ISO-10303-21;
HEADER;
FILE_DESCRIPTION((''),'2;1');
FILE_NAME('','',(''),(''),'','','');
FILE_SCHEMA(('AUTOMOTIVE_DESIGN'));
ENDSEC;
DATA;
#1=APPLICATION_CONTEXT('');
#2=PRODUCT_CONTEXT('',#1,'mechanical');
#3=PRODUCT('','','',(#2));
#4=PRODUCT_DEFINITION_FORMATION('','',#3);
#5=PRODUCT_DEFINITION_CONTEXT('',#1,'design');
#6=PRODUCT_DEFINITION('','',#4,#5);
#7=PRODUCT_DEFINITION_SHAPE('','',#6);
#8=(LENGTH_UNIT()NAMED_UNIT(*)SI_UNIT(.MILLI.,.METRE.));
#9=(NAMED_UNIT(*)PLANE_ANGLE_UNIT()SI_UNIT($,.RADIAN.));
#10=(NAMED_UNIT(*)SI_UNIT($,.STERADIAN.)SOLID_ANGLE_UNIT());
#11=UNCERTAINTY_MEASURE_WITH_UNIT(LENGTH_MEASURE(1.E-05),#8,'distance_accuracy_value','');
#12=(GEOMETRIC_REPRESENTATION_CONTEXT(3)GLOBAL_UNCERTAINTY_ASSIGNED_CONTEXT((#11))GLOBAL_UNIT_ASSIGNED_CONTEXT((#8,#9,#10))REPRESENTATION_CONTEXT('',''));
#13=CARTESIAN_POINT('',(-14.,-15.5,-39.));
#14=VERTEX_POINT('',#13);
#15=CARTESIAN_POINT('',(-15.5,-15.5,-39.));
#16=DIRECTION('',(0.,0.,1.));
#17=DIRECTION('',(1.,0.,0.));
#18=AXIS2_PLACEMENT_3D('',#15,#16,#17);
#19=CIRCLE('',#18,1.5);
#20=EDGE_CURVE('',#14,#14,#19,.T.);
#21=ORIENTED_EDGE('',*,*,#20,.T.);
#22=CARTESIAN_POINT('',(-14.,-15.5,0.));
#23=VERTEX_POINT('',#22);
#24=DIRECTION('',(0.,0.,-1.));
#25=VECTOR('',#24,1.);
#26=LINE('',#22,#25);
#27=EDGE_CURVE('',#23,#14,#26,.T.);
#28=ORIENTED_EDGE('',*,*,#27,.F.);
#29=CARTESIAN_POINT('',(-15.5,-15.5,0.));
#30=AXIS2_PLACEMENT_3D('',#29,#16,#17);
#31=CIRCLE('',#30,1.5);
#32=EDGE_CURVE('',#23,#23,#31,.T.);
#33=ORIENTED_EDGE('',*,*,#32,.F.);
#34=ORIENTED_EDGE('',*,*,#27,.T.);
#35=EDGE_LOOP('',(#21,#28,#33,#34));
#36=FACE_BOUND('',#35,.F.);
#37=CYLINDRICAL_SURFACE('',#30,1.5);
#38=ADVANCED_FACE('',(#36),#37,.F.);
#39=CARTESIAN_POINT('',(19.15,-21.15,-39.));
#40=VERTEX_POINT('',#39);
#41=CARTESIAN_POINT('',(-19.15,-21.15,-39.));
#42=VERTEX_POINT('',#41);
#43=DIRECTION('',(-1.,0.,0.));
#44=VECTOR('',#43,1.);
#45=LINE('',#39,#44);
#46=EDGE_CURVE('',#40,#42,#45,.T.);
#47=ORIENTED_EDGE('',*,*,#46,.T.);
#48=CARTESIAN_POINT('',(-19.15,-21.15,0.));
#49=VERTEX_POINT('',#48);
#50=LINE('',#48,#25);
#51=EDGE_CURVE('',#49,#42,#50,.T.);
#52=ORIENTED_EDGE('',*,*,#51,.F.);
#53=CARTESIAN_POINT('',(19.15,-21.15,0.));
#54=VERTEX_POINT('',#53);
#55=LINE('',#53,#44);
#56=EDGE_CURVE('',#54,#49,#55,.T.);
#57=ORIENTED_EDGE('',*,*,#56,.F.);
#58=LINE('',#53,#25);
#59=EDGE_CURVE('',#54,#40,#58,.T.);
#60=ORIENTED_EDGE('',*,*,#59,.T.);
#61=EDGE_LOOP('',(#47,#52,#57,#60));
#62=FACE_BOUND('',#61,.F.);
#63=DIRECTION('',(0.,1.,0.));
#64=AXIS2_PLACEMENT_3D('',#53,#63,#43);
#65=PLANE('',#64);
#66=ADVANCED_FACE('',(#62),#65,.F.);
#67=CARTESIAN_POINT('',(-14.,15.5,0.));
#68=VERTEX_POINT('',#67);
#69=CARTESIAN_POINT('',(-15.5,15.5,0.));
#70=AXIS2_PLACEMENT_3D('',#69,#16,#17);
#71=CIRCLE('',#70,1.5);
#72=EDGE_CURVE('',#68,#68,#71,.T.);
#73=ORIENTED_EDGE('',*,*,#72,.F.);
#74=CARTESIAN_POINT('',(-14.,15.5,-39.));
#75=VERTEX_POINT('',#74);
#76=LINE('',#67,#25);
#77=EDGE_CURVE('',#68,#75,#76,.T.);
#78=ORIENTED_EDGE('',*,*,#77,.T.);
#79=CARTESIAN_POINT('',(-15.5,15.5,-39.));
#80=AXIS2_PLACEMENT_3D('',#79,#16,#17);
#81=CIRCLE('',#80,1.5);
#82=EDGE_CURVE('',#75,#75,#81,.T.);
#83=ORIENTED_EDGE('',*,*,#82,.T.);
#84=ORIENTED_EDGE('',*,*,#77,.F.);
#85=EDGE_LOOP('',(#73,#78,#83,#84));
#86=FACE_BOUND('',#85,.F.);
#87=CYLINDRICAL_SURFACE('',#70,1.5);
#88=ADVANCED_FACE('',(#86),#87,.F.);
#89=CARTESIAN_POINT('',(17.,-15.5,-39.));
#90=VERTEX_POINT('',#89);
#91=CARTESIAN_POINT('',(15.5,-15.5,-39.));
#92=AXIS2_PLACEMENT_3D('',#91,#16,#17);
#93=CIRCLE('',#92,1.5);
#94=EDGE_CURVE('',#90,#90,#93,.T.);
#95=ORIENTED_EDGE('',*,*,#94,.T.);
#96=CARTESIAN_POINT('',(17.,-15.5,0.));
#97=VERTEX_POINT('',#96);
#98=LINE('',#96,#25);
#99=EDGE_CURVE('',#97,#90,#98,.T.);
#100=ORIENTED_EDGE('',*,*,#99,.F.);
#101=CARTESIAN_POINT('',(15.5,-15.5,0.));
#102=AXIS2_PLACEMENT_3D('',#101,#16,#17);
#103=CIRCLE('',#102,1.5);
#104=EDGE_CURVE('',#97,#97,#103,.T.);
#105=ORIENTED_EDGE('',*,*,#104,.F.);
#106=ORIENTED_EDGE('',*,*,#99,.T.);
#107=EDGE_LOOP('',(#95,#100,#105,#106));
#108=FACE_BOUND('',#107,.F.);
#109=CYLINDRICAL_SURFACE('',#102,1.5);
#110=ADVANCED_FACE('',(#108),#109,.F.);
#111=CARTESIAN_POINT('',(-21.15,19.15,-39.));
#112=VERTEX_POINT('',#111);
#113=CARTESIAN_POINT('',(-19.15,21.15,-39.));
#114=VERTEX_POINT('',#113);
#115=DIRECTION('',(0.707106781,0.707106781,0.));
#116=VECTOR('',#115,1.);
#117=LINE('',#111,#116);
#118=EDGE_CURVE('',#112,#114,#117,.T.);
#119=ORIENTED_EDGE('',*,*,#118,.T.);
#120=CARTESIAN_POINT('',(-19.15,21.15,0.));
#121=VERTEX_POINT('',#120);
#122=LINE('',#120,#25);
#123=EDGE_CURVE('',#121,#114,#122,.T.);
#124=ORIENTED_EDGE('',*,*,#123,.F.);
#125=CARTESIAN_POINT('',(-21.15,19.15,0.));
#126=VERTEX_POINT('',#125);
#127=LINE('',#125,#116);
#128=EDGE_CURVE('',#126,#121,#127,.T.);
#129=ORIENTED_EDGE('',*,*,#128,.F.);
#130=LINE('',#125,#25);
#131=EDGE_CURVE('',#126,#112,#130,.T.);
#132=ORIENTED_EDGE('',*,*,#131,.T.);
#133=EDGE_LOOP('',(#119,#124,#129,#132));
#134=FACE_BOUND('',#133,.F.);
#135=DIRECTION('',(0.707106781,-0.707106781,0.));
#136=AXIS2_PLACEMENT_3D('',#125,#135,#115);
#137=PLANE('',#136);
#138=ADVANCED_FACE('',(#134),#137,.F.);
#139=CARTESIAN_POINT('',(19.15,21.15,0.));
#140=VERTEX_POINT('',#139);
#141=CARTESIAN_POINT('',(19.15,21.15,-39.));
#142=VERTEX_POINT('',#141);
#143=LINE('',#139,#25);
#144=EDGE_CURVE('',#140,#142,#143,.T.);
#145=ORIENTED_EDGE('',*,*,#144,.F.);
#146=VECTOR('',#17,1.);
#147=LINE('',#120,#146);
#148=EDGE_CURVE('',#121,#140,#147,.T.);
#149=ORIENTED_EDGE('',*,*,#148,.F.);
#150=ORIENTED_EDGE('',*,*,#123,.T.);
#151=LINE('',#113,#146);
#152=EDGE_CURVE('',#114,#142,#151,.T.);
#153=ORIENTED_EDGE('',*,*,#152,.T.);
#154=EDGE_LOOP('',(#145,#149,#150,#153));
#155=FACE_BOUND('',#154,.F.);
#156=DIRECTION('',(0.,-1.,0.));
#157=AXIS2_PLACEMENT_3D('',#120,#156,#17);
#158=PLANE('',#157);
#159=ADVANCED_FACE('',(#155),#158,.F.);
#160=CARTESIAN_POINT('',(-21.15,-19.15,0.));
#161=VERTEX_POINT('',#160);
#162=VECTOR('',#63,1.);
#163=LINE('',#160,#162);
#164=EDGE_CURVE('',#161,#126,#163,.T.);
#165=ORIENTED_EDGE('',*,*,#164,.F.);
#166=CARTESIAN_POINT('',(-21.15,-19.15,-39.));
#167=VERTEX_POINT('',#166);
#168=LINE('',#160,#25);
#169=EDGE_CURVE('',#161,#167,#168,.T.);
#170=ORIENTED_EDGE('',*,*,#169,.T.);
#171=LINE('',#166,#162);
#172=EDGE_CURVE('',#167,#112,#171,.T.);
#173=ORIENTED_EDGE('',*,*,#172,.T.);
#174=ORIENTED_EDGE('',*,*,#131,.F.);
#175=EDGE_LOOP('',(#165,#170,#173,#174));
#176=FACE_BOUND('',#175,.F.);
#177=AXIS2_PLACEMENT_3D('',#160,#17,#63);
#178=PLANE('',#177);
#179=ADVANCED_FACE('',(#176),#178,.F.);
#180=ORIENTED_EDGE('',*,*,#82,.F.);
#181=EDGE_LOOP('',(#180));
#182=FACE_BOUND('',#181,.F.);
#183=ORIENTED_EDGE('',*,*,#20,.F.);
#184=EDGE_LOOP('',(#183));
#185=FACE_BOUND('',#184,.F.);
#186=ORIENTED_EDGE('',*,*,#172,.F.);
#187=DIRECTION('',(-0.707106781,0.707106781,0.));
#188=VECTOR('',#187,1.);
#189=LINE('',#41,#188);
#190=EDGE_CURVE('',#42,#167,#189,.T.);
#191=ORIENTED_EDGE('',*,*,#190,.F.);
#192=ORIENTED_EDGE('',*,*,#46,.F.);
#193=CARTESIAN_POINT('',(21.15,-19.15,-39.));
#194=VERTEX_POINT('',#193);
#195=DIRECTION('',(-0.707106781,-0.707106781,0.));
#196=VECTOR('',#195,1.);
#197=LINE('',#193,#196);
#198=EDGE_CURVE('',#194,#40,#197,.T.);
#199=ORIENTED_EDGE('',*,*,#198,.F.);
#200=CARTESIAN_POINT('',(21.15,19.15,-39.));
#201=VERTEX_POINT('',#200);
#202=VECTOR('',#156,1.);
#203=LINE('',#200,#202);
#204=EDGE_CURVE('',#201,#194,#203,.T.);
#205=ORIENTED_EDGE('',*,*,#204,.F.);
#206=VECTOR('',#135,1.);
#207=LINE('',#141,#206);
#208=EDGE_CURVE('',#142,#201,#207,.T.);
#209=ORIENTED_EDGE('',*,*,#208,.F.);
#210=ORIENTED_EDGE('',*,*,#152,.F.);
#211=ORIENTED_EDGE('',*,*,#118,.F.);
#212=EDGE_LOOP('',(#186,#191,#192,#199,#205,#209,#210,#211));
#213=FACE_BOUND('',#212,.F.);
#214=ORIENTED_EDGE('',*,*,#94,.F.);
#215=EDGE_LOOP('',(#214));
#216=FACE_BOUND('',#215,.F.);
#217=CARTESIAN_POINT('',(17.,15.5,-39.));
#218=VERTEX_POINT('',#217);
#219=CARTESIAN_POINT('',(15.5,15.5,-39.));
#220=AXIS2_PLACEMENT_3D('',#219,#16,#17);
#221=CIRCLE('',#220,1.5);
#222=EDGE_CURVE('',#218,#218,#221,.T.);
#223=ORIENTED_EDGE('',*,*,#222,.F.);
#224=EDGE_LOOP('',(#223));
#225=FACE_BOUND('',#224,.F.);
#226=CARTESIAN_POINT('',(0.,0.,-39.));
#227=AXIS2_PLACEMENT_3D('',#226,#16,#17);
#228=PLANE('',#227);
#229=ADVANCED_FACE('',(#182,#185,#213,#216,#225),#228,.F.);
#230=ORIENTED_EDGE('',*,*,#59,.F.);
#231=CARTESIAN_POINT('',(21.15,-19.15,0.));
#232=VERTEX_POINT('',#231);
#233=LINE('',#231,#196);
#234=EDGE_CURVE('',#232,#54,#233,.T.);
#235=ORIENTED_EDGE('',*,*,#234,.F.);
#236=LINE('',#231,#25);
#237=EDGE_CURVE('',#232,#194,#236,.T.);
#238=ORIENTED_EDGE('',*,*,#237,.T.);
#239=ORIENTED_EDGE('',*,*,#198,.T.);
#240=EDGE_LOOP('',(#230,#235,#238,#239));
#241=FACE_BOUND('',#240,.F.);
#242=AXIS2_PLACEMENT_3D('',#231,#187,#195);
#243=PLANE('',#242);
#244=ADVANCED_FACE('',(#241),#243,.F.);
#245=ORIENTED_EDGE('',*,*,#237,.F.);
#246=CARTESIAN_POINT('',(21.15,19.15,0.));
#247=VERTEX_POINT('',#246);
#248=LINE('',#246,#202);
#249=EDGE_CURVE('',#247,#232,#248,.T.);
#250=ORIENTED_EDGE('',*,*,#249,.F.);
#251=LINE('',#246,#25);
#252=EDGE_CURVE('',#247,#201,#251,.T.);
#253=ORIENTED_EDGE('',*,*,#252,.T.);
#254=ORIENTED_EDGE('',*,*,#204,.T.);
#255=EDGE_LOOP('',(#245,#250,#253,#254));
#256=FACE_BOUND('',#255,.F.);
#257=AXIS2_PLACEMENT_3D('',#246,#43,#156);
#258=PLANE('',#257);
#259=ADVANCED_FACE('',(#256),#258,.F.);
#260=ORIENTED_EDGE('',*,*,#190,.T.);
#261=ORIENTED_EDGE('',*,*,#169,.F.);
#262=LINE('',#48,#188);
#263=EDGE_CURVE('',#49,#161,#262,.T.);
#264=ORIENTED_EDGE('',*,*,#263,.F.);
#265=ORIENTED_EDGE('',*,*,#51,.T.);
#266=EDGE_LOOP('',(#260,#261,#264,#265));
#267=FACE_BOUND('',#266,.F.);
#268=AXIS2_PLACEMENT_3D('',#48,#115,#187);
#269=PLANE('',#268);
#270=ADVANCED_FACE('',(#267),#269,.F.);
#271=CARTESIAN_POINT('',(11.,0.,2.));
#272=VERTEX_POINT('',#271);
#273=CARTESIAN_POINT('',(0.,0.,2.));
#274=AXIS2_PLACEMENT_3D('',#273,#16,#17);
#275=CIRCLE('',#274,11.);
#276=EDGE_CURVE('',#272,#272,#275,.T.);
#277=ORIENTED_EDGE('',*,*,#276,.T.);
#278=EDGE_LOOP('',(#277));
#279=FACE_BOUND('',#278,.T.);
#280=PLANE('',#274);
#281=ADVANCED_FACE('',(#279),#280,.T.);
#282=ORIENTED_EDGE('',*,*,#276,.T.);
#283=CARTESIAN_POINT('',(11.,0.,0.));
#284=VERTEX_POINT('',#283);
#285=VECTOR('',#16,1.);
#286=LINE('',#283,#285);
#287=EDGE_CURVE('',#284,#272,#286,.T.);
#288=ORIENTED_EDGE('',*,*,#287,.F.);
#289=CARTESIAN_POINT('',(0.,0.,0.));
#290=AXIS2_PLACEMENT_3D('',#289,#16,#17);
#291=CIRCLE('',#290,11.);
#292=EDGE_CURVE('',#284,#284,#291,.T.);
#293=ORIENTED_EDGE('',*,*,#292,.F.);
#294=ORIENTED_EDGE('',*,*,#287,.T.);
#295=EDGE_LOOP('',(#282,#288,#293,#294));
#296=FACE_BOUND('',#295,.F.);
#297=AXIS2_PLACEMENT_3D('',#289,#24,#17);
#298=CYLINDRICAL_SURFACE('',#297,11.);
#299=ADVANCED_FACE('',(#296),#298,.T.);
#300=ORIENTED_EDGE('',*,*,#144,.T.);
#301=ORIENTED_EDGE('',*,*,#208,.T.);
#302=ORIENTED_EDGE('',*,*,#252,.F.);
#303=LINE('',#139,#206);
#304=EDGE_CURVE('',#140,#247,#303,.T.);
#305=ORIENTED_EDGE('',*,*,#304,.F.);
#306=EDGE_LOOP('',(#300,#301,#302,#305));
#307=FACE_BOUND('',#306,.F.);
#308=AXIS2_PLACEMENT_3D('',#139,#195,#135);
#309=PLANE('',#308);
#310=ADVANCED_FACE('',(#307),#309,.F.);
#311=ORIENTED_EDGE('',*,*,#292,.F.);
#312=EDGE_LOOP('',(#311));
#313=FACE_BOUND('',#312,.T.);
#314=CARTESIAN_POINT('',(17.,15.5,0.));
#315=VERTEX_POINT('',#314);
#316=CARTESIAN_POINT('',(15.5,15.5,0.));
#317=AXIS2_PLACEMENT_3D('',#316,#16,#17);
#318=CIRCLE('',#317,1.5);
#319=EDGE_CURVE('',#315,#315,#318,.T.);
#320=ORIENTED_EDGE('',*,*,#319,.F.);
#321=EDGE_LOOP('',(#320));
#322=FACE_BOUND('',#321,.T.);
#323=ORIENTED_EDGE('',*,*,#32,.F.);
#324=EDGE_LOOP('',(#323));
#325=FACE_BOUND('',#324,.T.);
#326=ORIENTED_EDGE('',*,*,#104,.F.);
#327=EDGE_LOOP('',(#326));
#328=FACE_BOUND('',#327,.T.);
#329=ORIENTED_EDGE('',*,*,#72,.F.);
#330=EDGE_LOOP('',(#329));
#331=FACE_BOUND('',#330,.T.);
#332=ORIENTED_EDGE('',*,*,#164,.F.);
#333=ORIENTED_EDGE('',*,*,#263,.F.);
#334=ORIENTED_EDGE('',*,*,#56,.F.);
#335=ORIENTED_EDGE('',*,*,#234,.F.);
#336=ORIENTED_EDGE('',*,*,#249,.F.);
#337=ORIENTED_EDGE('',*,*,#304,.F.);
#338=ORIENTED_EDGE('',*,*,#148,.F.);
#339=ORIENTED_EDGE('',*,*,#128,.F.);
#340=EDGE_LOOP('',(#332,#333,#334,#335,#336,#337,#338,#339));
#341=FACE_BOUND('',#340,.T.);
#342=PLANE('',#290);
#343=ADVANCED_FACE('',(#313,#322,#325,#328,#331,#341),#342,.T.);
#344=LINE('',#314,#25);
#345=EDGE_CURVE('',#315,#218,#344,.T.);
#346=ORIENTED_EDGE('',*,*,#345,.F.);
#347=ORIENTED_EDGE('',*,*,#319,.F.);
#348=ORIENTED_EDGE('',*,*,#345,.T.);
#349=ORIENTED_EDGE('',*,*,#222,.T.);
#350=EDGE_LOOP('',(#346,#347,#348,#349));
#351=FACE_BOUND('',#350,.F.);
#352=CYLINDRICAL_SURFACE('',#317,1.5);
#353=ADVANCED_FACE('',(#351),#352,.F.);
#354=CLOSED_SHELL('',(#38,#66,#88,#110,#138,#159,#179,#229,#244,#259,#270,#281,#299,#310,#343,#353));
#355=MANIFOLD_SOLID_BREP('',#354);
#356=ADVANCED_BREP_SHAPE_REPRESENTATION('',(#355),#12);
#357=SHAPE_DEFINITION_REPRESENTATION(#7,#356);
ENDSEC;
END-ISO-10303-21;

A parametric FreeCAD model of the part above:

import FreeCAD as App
import Part
import Sketcher

doc = App.newDocument("Part")
body = doc.addObject("PartDesign::Body", "Body")

# Sketch on XY plane
sketch1 = body.newObject("Sketcher::SketchObject", "Sketch")
sketch1.AttachmentSupport = (doc.getObject("XY_Plane"), [""])
sketch1.MapMode = "FlatFace"
sketch1.addGeometry(Part.Circle(App.Vector(0, 0, 0), App.Vector(0, 0, 1), 11), False)
sketch1.addConstraint(Sketcher.Constraint("Coincident", 0, 3, -1, 1))
sketch1.addConstraint(Sketcher.Constraint("Diameter", 0, 22.0))
pad1 = body.newObject("PartDesign::Pad", "Pad")
pad1.Profile = sketch1
pad1.Length = 2

# Sketch on XY plane
sketch2 = body.newObject("Sketcher::SketchObject", "Sketch001")
sketch2.AttachmentSupport = (doc.getObject("XY_Plane"), [""])
sketch2.MapMode = "FlatFace"
sketch2.addGeometry(Part.LineSegment(App.Vector(19.1, 21.1, 0), App.Vector(-19.1, 21.1, 0)), False)
sketch2.addGeometry(Part.LineSegment(App.Vector(-19.1, 21.1, 0), App.Vector(-21.1, 19.1, 0)), False)
sketch2.addGeometry(Part.LineSegment(App.Vector(-21.1, 19.1, 0), App.Vector(-21.1, -19.1, 0)), False)
sketch2.addGeometry(Part.LineSegment(App.Vector(-21.1, -19.1, 0), App.Vector(-19.1, -21.1, 0)), False)
sketch2.addGeometry(Part.LineSegment(App.Vector(-19.1, -21.1, 0), App.Vector(19.1, -21.1, 0)), False)
sketch2.addGeometry(Part.LineSegment(App.Vector(19.1, -21.1, 0), App.Vector(21.1, -19.1, 0)), False)
sketch2.addGeometry(Part.LineSegment(App.Vector(21.1, -19.1, 0), App.Vector(21.1, 19.1, 0)), False)
sketch2.addGeometry(Part.LineSegment(App.Vector(21.1, 19.1, 0), App.Vector(19.1, 21.1, 0)), False)
sketch2.addGeometry(Part.Circle(App.Vector(-15.5, -15.5, 0), App.Vector(0, 0, 1), 1.5), False)
sketch2.addGeometry(Part.Circle(App.Vector(15.5, -15.5, 0), App.Vector(0, 0, 1), 1.5), False)
sketch2.addGeometry(Part.Circle(App.Vector(-15.5, 15.5, 0), App.Vector(0, 0, 1), 1.5), False)
sketch2.addGeometry(Part.Circle(App.Vector(15.5, 15.5, 0), App.Vector(0, 0, 1), 1.5), False)
sketch2.addConstraint(Sketcher.Constraint("Coincident", 0, 2, 1, 1))
sketch2.addConstraint(Sketcher.Constraint("Coincident", 1, 2, 2, 1))
sketch2.addConstraint(Sketcher.Constraint("Coincident", 2, 2, 3, 1))
sketch2.addConstraint(Sketcher.Constraint("Coincident", 3, 2, 4, 1))
sketch2.addConstraint(Sketcher.Constraint("Coincident", 4, 2, 5, 1))
sketch2.addConstraint(Sketcher.Constraint("Coincident", 5, 2, 6, 1))
sketch2.addConstraint(Sketcher.Constraint("Coincident", 6, 2, 7, 1))
sketch2.addConstraint(Sketcher.Constraint("Coincident", 7, 2, 0, 1))
sketch2.addConstraint(Sketcher.Constraint("Horizontal", 0))
sketch2.addConstraint(Sketcher.Constraint("Vertical", 2))
sketch2.addConstraint(Sketcher.Constraint("Horizontal", 4))
sketch2.addConstraint(Sketcher.Constraint("Vertical", 6))
sketch2.addConstraint(Sketcher.Constraint("Equal", 8, 9))
sketch2.addConstraint(Sketcher.Constraint("Equal", 9, 10))
sketch2.addConstraint(Sketcher.Constraint("Equal", 10, 11))
sketch2.addConstraint(Sketcher.Constraint("Symmetric", 9, 3, 10, 3, -1, 1))
sketch2.addConstraint(Sketcher.Constraint("Symmetric", 8, 3, 11, 3, -1, 1))
sketch2.addConstraint(Sketcher.Constraint("Symmetric", 0, 2, 4, 2, -1, 1))
sketch2.addConstraint(Sketcher.Constraint("Symmetric", 1, 2, 5, 2, -1, 1))
sketch2.addConstraint(Sketcher.Constraint("Symmetric", 8, 3, 9, 3, -2))
sketch2.addConstraint(Sketcher.Constraint("Perpendicular", 1, 3))
sketch2.addConstraint(Sketcher.Constraint("Perpendicular", 5, 7))
sketch2.addConstraint(Sketcher.Constraint("Horizontal", 2, 2, 5, 2))
sketch2.addConstraint(Sketcher.Constraint("Horizontal", 1, 2, 6, 2))
sketch2.addConstraint(Sketcher.Constraint("Vertical", 0, 2, 3, 2))
sketch2.addConstraint(Sketcher.Constraint("Equal", 4, 2))
sketch2.addConstraint(Sketcher.Constraint("Diameter", 8, 3.0))
sketch2.addConstraint(Sketcher.Constraint("DistanceX", 8, 3, 9, 3, 31.0))
sketch2.addConstraint(Sketcher.Constraint("DistanceY", 8, 3, 10, 3, 31.0))
sketch2.addConstraint(Sketcher.Constraint("DistanceX", 1, 2, 0, 2, 2.0))
sketch2.addConstraint(Sketcher.Constraint("DistanceX", 0, 2, 0, 1, 38.3))
pad2 = body.newObject("PartDesign::Pad", "Pad001")
pad2.Profile = sketch2
pad2.Length = 39
pad2.Reversed = True

doc.recompute()
